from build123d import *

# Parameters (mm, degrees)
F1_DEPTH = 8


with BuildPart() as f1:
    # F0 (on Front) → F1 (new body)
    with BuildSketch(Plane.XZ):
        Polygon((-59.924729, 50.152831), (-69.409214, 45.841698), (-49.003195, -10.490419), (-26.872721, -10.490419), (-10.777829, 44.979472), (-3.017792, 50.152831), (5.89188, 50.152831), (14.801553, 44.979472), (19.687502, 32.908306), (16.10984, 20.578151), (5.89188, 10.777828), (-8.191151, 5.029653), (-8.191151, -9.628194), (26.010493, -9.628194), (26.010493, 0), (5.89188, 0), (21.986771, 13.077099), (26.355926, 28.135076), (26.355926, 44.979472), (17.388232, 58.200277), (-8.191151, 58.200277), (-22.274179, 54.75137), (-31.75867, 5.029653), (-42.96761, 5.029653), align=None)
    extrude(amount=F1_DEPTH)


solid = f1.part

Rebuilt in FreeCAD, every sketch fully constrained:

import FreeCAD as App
import Part
import Sketcher

V = App.Vector

doc = App.newDocument("Part")
body = doc.addObject("PartDesign::Body", "Body")

# Sketch on XZ plane
sketch1 = body.newObject("Sketcher::SketchObject", "Sketch")
sketch1.AttachmentSupport = (doc.getObject("XZ_Plane"), [""])
sketch1.MapMode = "FlatFace"
sketch1.addGeometry([
    Part.LineSegment(V(-60, 50, 0), V(-69, 46, 0)),  # 0
    Part.LineSegment(V(-69, 46, 0), V(-49, -10, 0)),  # 1
    Part.LineSegment(V(-49, -10, 0), V(-27, -10, 0)),  # 2
    Part.LineSegment(V(-27, -10, 0), V(-11, 45, 0)),  # 3
    Part.LineSegment(V(-11, 45, 0), V(-3, 50, 0)),  # 4
    Part.LineSegment(V(-3, 50, 0), V(6, 50, 0)),  # 5
    Part.LineSegment(V(6, 50, 0), V(15, 45, 0)),  # 6
    Part.LineSegment(V(15, 45, 0), V(20, 33, 0)),  # 7
    Part.LineSegment(V(20, 33, 0), V(16, 21, 0)),  # 8
    Part.LineSegment(V(16, 21, 0), V(6, 11, 0)),  # 9
    Part.LineSegment(V(6, 11, 0), V(-8, 5, 0)),  # 10
    Part.LineSegment(V(-8, 5, 0), V(-8, -10, 0)),  # 11
    Part.LineSegment(V(-8, -10, 0), V(26, -10, 0)),  # 12
    Part.LineSegment(V(26, -10, 0), V(26, 0, 0)),  # 13
    Part.LineSegment(V(26, 0, 0), V(6, 0, 0)),  # 14
    Part.LineSegment(V(6, 0, 0), V(22, 13, 0)),  # 15
    Part.LineSegment(V(22, 13, 0), V(26, 28, 0)),  # 16
    Part.LineSegment(V(26, 28, 0), V(26, 45, 0)),  # 17
    Part.LineSegment(V(26, 45, 0), V(17, 58, 0)),  # 18
    Part.LineSegment(V(17, 58, 0), V(-8, 58, 0)),  # 19
    Part.LineSegment(V(-8, 58, 0), V(-22, 55, 0)),  # 20
    Part.LineSegment(V(-22, 55, 0), V(-32, 5, 0)),  # 21
    Part.LineSegment(V(-32, 5, 0), V(-43, 5, 0)),  # 22
    Part.LineSegment(V(-43, 5, 0), V(-60, 50, 0)),  # 23
], False)
sketch1.addConstraint([
    Sketcher.Constraint("Coincident", 0, 2, 1, 1),
    Sketcher.Constraint("Coincident", 1, 2, 2, 1),
    Sketcher.Constraint("Coincident", 2, 2, 3, 1),
    Sketcher.Constraint("Coincident", 3, 2, 4, 1),
    Sketcher.Constraint("Coincident", 4, 2, 5, 1),
    Sketcher.Constraint("Coincident", 5, 2, 6, 1),
    Sketcher.Constraint("Coincident", 6, 2, 7, 1),
    Sketcher.Constraint("Coincident", 7, 2, 8, 1),
    Sketcher.Constraint("Coincident", 8, 2, 9, 1),
    Sketcher.Constraint("Coincident", 9, 2, 10, 1),
    Sketcher.Constraint("Coincident", 10, 2, 11, 1),
    Sketcher.Constraint("Coincident", 11, 2, 12, 1),
    Sketcher.Constraint("Coincident", 12, 2, 13, 1),
    Sketcher.Constraint("Coincident", 13, 2, 14, 1),
    Sketcher.Constraint("Coincident", 14, 2, 15, 1),
    Sketcher.Constraint("Coincident", 15, 2, 16, 1),
    Sketcher.Constraint("Coincident", 16, 2, 17, 1),
    Sketcher.Constraint("Coincident", 17, 2, 18, 1),
    Sketcher.Constraint("Coincident", 18, 2, 19, 1),
    Sketcher.Constraint("Coincident", 19, 2, 20, 1),
    Sketcher.Constraint("Coincident", 20, 2, 21, 1),
    Sketcher.Constraint("Coincident", 21, 2, 22, 1),
    Sketcher.Constraint("Coincident", 22, 2, 23, 1),
    Sketcher.Constraint("Coincident", 23, 2, 0, 1),
    Sketcher.Constraint("Horizontal", 2),
    Sketcher.Constraint("Horizontal", 5),
    Sketcher.Constraint("Vertical", 11),
    Sketcher.Constraint("Horizontal", 12),
    Sketcher.Constraint("Vertical", 13),
    Sketcher.Constraint("Horizontal", 14),
    Sketcher.Constraint("Vertical", 17),
    Sketcher.Constraint("Horizontal", 19),
    Sketcher.Constraint("Horizontal", 22),
    Sketcher.Constraint("PointOnObject", 13, 2, -1),
    Sketcher.Constraint("Parallel", 3, 8),
    Sketcher.Constraint("Parallel", 8, 16),
    Sketcher.Constraint("Horizontal", 3, 2, 6, 2),
    Sketcher.Constraint("Horizontal", 6, 2, 17, 2),
    Sketcher.Constraint("Horizontal", 10, 2, 21, 2),
    Sketcher.Constraint("Horizontal", 5, 2, 23, 2),
    Sketcher.Constraint("Vertical", 5, 2, 9, 2),
    Sketcher.Constraint("Vertical", 9, 2, 14, 2),
    Sketcher.Constraint("Vertical", 11, 2, 19, 2),
    Sketcher.Constraint("Distance", 7, 13.022502),
    Sketcher.Constraint("Distance", 23, 48.204202),
    Sketcher.Constraint("DistanceX", 22, 2, 22, 1, 11.20894),
    Sketcher.Constraint("DistanceX", -1, 1, 7, 2, 19.687502),
    Sketcher.Constraint("DistanceY", -1, 1, 15, 2, 13.077099),
    Sketcher.Constraint("DistanceX", 2, 2, 5, 2, 32.764601),
    Sketcher.Constraint("DistanceY", 12, 2, 7, 2, 42.5365),
    Sketcher.Constraint("DistanceX", 23, 2, 3, 2, 49.1469),
    Sketcher.Constraint("Distance", 3, 57.757721),
    Sketcher.Constraint("Distance", 10, 15.210959),
    Sketcher.Constraint("Distance", 18, 15.975269),
    Sketcher.Constraint("DistanceX", 2, 1, 2, 2, 22.130474),
    Sketcher.Constraint("DistanceX", 5, 1, 5, 2, 8.909672),
    Sketcher.Constraint("DistanceX", 12, 1, 12, 2, 34.201644),
    Sketcher.Constraint("DistanceX", 14, 2, 14, 1, 20.118613),
    Sketcher.Constraint("DistanceX", 19, 2, 19, 1, 25.579383),
    Sketcher.Constraint("DistanceY", 11, 2, 11, 1, 14.657847),
    Sketcher.Constraint("DistanceY", 13, 1, 13, 2, 9.628194),
    Sketcher.Constraint("DistanceY", 17, 1, 17, 2, 16.844396),
    Sketcher.Constraint("DistanceY", 1, 2, -1, 1, 10.490419),
    Sketcher.Constraint("DistanceX", 2, 2, -1, 1, 26.872721),
    Sketcher.Constraint("DistanceX", 3, 2, -1, 1, 10.777829),
    Sketcher.Constraint("DistanceY", -1, 1, 4, 2, 50.152831),
    Sketcher.Constraint("DistanceX", -1, 1, 8, 2, 16.10984),
    Sketcher.Constraint("DistanceX", -1, 1, 15, 2, 21.986771),
    Sketcher.Constraint("DistanceX", 20, 2, -1, 1, 22.274179),
    Sketcher.Constraint("DistanceY", -1, 1, 20, 2, 54.75137),
    Sketcher.Constraint("DistanceX", 0, 2, 1, 2, 20.406019),
    Sketcher.Constraint("Distance", 0, 10.418317),
])
pad1 = body.newObject("PartDesign::Pad", "Pad")
pad1.Profile = sketch1
pad1.Length = 8

doc.recompute()
